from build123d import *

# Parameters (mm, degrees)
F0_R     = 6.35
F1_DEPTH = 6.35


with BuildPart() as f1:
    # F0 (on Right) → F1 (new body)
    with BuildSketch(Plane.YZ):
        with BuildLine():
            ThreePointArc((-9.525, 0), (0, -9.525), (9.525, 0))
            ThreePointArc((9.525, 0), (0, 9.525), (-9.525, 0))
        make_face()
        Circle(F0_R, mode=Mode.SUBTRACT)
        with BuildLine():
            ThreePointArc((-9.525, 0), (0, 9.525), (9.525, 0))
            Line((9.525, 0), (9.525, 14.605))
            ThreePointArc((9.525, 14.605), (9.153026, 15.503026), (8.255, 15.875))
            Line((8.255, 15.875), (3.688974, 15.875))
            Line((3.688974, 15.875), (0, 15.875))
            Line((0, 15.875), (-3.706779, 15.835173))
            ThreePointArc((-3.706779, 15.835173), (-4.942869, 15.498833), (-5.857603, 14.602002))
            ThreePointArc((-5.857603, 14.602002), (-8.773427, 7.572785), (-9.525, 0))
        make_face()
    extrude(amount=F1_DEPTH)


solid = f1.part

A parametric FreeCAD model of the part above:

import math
import FreeCAD as App
import Part
import Sketcher
Q = App.Units.Quantity

doc = App.newDocument("Part")
body = doc.addObject("PartDesign::Body", "Body")

sketch1 = doc.addObject("Sketcher::SketchObject", "Sketch")
body.addObject(sketch1)
sketch1.AttachmentSupport = (doc.YZ_Plane, [""])
sketch1.MapMode = "FlatFace"
sketch1.addGeometry(Part.ArcOfCircle(Part.Circle(App.Vector(0, 0, 0), App.Vector(0, 0, 1), 9.5), math.radians(180), math.radians(360)), False)
sketch1.addGeometry(Part.LineSegment(App.Vector(9.5, 0, 0), App.Vector(9.5, 14.6, 0)), False)
sketch1.addGeometry(Part.ArcOfCircle(Part.Circle(App.Vector(8.3, 14.6, 0), App.Vector(0, 0, 1), 1.3), math.radians(0), math.radians(90)), False)
sketch1.addGeometry(Part.LineSegment(App.Vector(8.3, 15.9, 0), App.Vector(0, 15.9, 0)), False)
sketch1.addGeometry(Part.LineSegment(App.Vector(0, 15.9, 0), App.Vector(-3.7, 15.8, 0)), False)
sketch1.addGeometry(Part.ArcOfCircle(Part.Circle(App.Vector(-3.7, 13.3, 0), App.Vector(0, 0, 1), 2.5), math.radians(91), math.radians(149)), False)
sketch1.addGeometry(Part.ArcOfCircle(Part.Circle(App.Vector(16.4, 1.3, 0), App.Vector(0, 0, 1), 26), math.radians(149), math.radians(183)), False)
sketch1.addGeometry(Part.Circle(App.Vector(0, 0, 0), App.Vector(0, 0, 1), 6.3), False)
sketch1.addConstraint(Sketcher.Constraint("Tangent", 0, 2, 1, 1))
sketch1.addConstraint(Sketcher.Constraint("Tangent", 1, 2, 2, 1))
sketch1.addConstraint(Sketcher.Constraint("Tangent", 2, 2, 3, 1))
sketch1.addConstraint(Sketcher.Constraint("Coincident", 3, 2, 4, 1))
sketch1.addConstraint(Sketcher.Constraint("Tangent", 4, 2, 5, 1))
sketch1.addConstraint(Sketcher.Constraint("Tangent", 5, 2, 6, 1))
sketch1.addConstraint(Sketcher.Constraint("Coincident", 6, 2, 0, 1))
sketch1.addConstraint(Sketcher.Constraint("Vertical", 1))
sketch1.addConstraint(Sketcher.Constraint("Horizontal", 3))
sketch1.addConstraint(Sketcher.Constraint("Coincident", 0, 3, -1, 1))
sketch1.addConstraint(Sketcher.Constraint("Coincident", 7, 3, -1, 1))
sketch1.addConstraint(Sketcher.Constraint("PointOnObject", 3, 2, -2))
sketch1.addConstraint(Sketcher.Constraint("PointOnObject", 6, 2, -1))
sketch1.addConstraint(Sketcher.Constraint("Diameter", 7, Q("0.5 in")))
sketch1.addConstraint(Sketcher.Constraint("Radius", 5, Q("0.1 in")))
sketch1.addConstraint(Sketcher.Constraint("Radius", 2, Q("0.0499999 in")))
sketch1.addConstraint(Sketcher.Constraint("Radius", 0, Q("0.375 in")))
sketch1.addConstraint(Sketcher.Constraint("DistanceY", 1, 1, 1, 2, Q("0.575 in")))
sketch1.addConstraint(Sketcher.Constraint("Radius", 6, 25.952392))
sketch1.addConstraint(Sketcher.Constraint("DistanceY", 5, 2, 2, 3, 0.002999))
sketch1.addConstraint(Sketcher.Constraint("DistanceX", 5, 3, -1, 1, 3.679489))
pad1 = doc.addObject("PartDesign::Pad", "Pad")
body.addObject(pad1)
pad1.Profile = sketch1
pad1.Length = Q("0.25 in")

doc.recompute()
